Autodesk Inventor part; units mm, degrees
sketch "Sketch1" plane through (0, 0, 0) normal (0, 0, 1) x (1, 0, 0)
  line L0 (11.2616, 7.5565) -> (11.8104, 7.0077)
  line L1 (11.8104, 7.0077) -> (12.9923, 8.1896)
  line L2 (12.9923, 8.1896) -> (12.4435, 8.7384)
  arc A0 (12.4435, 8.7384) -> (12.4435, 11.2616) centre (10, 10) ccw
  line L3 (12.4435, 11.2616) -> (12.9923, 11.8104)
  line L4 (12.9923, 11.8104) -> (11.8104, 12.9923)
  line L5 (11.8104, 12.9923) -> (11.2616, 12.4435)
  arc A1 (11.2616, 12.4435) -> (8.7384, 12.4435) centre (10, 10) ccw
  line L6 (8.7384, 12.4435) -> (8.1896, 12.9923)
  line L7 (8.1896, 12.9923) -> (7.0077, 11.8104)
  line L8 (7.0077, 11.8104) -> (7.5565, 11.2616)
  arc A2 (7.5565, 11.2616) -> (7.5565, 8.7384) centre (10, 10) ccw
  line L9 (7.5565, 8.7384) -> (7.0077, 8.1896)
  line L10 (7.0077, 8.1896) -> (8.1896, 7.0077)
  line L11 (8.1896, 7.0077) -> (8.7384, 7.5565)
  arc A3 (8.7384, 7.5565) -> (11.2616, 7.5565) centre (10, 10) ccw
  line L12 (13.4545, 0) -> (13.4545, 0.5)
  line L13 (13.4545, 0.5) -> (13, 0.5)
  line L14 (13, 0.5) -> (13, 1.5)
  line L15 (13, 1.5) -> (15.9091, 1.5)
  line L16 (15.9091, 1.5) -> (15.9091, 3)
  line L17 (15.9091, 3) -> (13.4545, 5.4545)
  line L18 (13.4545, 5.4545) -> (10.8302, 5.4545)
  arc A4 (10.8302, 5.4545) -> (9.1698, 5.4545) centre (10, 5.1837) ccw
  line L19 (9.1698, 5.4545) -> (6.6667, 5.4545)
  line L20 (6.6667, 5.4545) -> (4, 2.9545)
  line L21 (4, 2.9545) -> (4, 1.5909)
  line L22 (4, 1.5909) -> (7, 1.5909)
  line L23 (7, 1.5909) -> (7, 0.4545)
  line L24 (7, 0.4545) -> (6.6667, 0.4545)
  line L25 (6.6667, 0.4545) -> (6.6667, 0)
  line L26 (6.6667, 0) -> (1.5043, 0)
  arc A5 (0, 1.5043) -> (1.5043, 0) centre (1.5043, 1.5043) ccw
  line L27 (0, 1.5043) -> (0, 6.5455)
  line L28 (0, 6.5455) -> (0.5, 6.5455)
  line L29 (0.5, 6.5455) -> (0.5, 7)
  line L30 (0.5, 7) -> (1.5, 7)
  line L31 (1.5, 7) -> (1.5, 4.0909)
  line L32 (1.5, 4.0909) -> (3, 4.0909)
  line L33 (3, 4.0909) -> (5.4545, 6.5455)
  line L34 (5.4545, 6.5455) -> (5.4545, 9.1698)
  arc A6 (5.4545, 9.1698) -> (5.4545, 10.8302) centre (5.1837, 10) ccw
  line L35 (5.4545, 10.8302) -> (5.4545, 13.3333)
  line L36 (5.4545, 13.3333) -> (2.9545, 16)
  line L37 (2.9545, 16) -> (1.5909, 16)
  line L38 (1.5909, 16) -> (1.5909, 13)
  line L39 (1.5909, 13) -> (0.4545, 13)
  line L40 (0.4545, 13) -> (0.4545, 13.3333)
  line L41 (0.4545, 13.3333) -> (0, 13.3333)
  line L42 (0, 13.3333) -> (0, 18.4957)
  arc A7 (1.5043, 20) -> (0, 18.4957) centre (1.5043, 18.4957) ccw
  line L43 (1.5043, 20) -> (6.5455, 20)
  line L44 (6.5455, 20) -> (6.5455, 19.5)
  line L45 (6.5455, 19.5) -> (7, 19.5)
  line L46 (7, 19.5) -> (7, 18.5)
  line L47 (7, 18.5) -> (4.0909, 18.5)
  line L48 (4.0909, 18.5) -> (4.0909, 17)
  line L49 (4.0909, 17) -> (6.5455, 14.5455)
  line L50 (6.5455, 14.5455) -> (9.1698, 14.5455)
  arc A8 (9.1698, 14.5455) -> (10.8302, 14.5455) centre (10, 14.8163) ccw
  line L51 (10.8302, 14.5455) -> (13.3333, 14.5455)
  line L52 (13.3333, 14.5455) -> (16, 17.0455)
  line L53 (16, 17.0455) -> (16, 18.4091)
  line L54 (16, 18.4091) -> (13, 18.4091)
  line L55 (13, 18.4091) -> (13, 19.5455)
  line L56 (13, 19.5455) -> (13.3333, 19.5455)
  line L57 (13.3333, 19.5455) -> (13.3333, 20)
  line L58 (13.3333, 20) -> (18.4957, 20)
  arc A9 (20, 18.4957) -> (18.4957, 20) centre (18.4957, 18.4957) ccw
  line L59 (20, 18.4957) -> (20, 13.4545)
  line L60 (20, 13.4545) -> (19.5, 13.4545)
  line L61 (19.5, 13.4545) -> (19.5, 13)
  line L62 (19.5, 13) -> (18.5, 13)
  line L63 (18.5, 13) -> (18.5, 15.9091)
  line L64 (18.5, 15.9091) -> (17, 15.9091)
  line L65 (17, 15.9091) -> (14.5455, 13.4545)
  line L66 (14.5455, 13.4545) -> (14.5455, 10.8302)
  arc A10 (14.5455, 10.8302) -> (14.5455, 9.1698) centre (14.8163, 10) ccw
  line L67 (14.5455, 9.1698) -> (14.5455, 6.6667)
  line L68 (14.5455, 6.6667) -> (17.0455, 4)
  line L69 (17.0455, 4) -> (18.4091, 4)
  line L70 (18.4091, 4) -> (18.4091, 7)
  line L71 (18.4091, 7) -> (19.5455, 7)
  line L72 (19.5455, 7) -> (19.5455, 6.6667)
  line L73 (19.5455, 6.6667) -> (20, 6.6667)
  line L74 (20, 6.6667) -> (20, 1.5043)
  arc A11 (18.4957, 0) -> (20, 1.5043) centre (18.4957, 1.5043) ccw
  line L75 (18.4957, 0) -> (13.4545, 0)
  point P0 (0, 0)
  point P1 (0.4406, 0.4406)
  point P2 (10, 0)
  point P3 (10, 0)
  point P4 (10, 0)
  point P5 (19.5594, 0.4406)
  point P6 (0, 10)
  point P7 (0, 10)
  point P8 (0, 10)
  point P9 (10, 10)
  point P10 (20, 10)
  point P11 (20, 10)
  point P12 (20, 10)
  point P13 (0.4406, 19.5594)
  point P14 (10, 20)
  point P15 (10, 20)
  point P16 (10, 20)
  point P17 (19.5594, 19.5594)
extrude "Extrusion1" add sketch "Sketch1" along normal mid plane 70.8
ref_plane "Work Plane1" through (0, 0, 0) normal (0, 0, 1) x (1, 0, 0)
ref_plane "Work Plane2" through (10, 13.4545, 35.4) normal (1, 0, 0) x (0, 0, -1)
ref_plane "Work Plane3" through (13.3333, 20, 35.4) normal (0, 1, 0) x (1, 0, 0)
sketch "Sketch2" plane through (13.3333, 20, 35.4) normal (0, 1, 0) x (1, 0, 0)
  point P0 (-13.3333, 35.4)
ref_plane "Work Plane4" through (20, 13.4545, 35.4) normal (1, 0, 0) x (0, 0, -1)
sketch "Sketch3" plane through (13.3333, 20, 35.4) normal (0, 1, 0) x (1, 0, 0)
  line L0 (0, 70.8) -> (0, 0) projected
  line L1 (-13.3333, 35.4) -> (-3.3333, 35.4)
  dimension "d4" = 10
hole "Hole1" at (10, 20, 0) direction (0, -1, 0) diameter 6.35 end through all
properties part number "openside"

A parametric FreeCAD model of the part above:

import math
import FreeCAD as App
import Part
import Sketcher
Q = App.Units.Quantity

doc = App.newDocument("Part")
body = doc.addObject("PartDesign::Body", "Body")

# Sketch on XY plane
sketch1 = body.newObject("Sketcher::SketchObject", "Sketch")
sketch1.AttachmentSupport = (doc.getObject("XY_Plane"), [""])
sketch1.MapMode = "FlatFace"
sketch1.addGeometry([
    Part.LineSegment(App.Vector(13.45, 0.5, 0), App.Vector(13.45, 0, 0)),  # 0
    Part.LineSegment(App.Vector(13.45, 0, 0), App.Vector(18.5, 0, 0)),  # 1
    Part.ArcOfCircle(Part.Circle(App.Vector(18.5, 1.5, 0), App.Vector(0, 0, 1), 1.5), math.radians(-90), math.radians(0)),  # 2
    Part.LineSegment(App.Vector(20, 1.5, 0), App.Vector(20, 6.67, 0)),  # 3
    Part.LineSegment(App.Vector(20, 6.67, 0), App.Vector(19.55, 6.67, 0)),  # 4
    Part.LineSegment(App.Vector(19.55, 6.67, 0), App.Vector(19.55, 7, 0)),  # 5
    Part.LineSegment(App.Vector(19.55, 7, 0), App.Vector(18.41, 7, 0)),  # 6
    Part.LineSegment(App.Vector(18.41, 7, 0), App.Vector(18.41, 4, 0)),  # 7
    Part.LineSegment(App.Vector(18.41, 4, 0), App.Vector(17.05, 4, 0)),  # 8
    Part.LineSegment(App.Vector(17.05, 4, 0), App.Vector(14.55, 6.67, 0)),  # 9
    Part.LineSegment(App.Vector(14.55, 6.67, 0), App.Vector(14.55, 9.17, 0)),  # 10
    Part.ArcOfCircle(Part.Circle(App.Vector(14.82, 10, 0), App.Vector(0, 0, 1), 0.87), math.radians(108), math.radians(252)),  # 11
    Part.LineSegment(App.Vector(14.55, 10.83, 0), App.Vector(14.55, 13.45, 0)),  # 12
    Part.LineSegment(App.Vector(14.55, 13.45, 0), App.Vector(17, 15.91, 0)),  # 13
    Part.LineSegment(App.Vector(17, 15.91, 0), App.Vector(18.5, 15.91, 0)),  # 14
    Part.LineSegment(App.Vector(18.5, 15.91, 0), App.Vector(18.5, 13, 0)),  # 15
    Part.LineSegment(App.Vector(18.5, 13, 0), App.Vector(19.5, 13, 0)),  # 16
    Part.LineSegment(App.Vector(19.5, 13, 0), App.Vector(19.5, 13.45, 0)),  # 17
    Part.LineSegment(App.Vector(19.5, 13.45, 0), App.Vector(20, 13.45, 0)),  # 18
    Part.LineSegment(App.Vector(20, 13.45, 0), App.Vector(20, 18.5, 0)),  # 19
    Part.ArcOfCircle(Part.Circle(App.Vector(18.5, 18.5, 0), App.Vector(0, 0, 1), 1.5), math.radians(0), math.radians(90)),  # 20
    Part.LineSegment(App.Vector(18.5, 20, 0), App.Vector(13.33, 20, 0)),  # 21
    Part.LineSegment(App.Vector(13.33, 20, 0), App.Vector(13.33, 19.55, 0)),  # 22
    Part.LineSegment(App.Vector(13.33, 19.55, 0), App.Vector(13, 19.55, 0)),  # 23
    Part.LineSegment(App.Vector(13, 19.55, 0), App.Vector(13, 18.41, 0)),  # 24
    Part.LineSegment(App.Vector(13, 18.41, 0), App.Vector(16, 18.41, 0)),  # 25
    Part.LineSegment(App.Vector(16, 18.41, 0), App.Vector(16, 17.05, 0)),  # 26
    Part.LineSegment(App.Vector(16, 17.05, 0), App.Vector(13.33, 14.55, 0)),  # 27
    Part.LineSegment(App.Vector(13.33, 14.55, 0), App.Vector(10.83, 14.55, 0)),  # 28
    Part.ArcOfCircle(Part.Circle(App.Vector(10, 14.82, 0), App.Vector(0, 0, 1), 0.87), math.radians(-162), math.radians(-18)),  # 29
    Part.LineSegment(App.Vector(9.17, 14.55, 0), App.Vector(6.55, 14.55, 0)),  # 30
    Part.LineSegment(App.Vector(6.55, 14.55, 0), App.Vector(4.09, 17, 0)),  # 31
    Part.LineSegment(App.Vector(4.09, 17, 0), App.Vector(4.09, 18.5, 0)),  # 32
    Part.LineSegment(App.Vector(4.09, 18.5, 0), App.Vector(7, 18.5, 0)),  # 33
    Part.LineSegment(App.Vector(7, 18.5, 0), App.Vector(7, 19.5, 0)),  # 34
    Part.LineSegment(App.Vector(7, 19.5, 0), App.Vector(6.55, 19.5, 0)),  # 35
    Part.LineSegment(App.Vector(6.55, 19.5, 0), App.Vector(6.55, 20, 0)),  # 36
    Part.LineSegment(App.Vector(6.55, 20, 0), App.Vector(1.5, 20, 0)),  # 37
    Part.ArcOfCircle(Part.Circle(App.Vector(1.5, 18.5, 0), App.Vector(0, 0, 1), 1.5), math.radians(90), math.radians(180)),  # 38
    Part.LineSegment(App.Vector(0, 18.5, 0), App.Vector(0, 13.33, 0)),  # 39
    Part.LineSegment(App.Vector(0, 13.33, 0), App.Vector(0.45, 13.33, 0)),  # 40
    Part.LineSegment(App.Vector(0.45, 13.33, 0), App.Vector(0.45, 13, 0)),  # 41
    Part.LineSegment(App.Vector(0.45, 13, 0), App.Vector(1.59, 13, 0)),  # 42
    Part.LineSegment(App.Vector(1.59, 13, 0), App.Vector(1.59, 16, 0)),  # 43
    Part.LineSegment(App.Vector(1.59, 16, 0), App.Vector(2.95, 16, 0)),  # 44
    Part.LineSegment(App.Vector(2.95, 16, 0), App.Vector(5.45, 13.33, 0)),  # 45
    Part.LineSegment(App.Vector(5.45, 13.33, 0), App.Vector(5.45, 10.83, 0)),  # 46
    Part.ArcOfCircle(Part.Circle(App.Vector(5.18, 10, 0), App.Vector(0, 0, 1), 0.87), math.radians(-72), math.radians(72)),  # 47
    Part.LineSegment(App.Vector(5.45, 9.17, 0), App.Vector(5.45, 6.55, 0)),  # 48
    Part.LineSegment(App.Vector(5.45, 6.55, 0), App.Vector(3, 4.09, 0)),  # 49
    Part.LineSegment(App.Vector(3, 4.09, 0), App.Vector(1.5, 4.09, 0)),  # 50
    Part.LineSegment(App.Vector(1.5, 4.09, 0), App.Vector(1.5, 7, 0)),  # 51
    Part.LineSegment(App.Vector(1.5, 7, 0), App.Vector(0.5, 7, 0)),  # 52
    Part.LineSegment(App.Vector(0.5, 7, 0), App.Vector(0.5, 6.55, 0)),  # 53
    Part.LineSegment(App.Vector(0.5, 6.55, 0), App.Vector(0, 6.55, 0)),  # 54
    Part.LineSegment(App.Vector(0, 6.55, 0), App.Vector(0, 1.5, 0)),  # 55
    Part.ArcOfCircle(Part.Circle(App.Vector(1.5, 1.5, 0), App.Vector(0, 0, 1), 1.5), math.radians(180), math.radians(270)),  # 56
    Part.LineSegment(App.Vector(1.5, 0, 0), App.Vector(6.67, 0, 0)),  # 57
    Part.LineSegment(App.Vector(6.67, 0, 0), App.Vector(6.67, 0.45, 0)),  # 58
    Part.LineSegment(App.Vector(6.67, 0.45, 0), App.Vector(7, 0.45, 0)),  # 59
    Part.LineSegment(App.Vector(7, 0.45, 0), App.Vector(7, 1.59, 0)),  # 60
    Part.LineSegment(App.Vector(7, 1.59, 0), App.Vector(4, 1.59, 0)),  # 61
    Part.LineSegment(App.Vector(4, 1.59, 0), App.Vector(4, 2.95, 0)),  # 62
    Part.LineSegment(App.Vector(4, 2.95, 0), App.Vector(6.67, 5.45, 0)),  # 63
    Part.LineSegment(App.Vector(6.67, 5.45, 0), App.Vector(9.17, 5.45, 0)),  # 64
    Part.ArcOfCircle(Part.Circle(App.Vector(10, 5.18, 0), App.Vector(0, 0, 1), 0.87), math.radians(18), math.radians(162)),  # 65
    Part.LineSegment(App.Vector(10.83, 5.45, 0), App.Vector(13.45, 5.45, 0)),  # 66
    Part.LineSegment(App.Vector(13.45, 5.45, 0), App.Vector(15.91, 3, 0)),  # 67
    Part.LineSegment(App.Vector(15.91, 3, 0), App.Vector(15.91, 1.5, 0)),  # 68
    Part.LineSegment(App.Vector(15.91, 1.5, 0), App.Vector(13, 1.5, 0)),  # 69
    Part.LineSegment(App.Vector(13, 1.5, 0), App.Vector(13, 0.5, 0)),  # 70
    Part.LineSegment(App.Vector(13, 0.5, 0), App.Vector(13.45, 0.5, 0)),  # 71
    Part.LineSegment(App.Vector(11.81, 7.01, 0), App.Vector(11.26, 7.56, 0)),  # 72
    Part.ArcOfCircle(Part.Circle(App.Vector(10, 10, 0), App.Vector(0, 0, 1), 2.75), math.radians(-117), math.radians(-63)),  # 73
    Part.LineSegment(App.Vector(8.74, 7.56, 0), App.Vector(8.19, 7.01, 0)),  # 74
    Part.LineSegment(App.Vector(8.19, 7.01, 0), App.Vector(7.01, 8.19, 0)),  # 75
    Part.LineSegment(App.Vector(7.01, 8.19, 0), App.Vector(7.56, 8.74, 0)),  # 76
    Part.ArcOfCircle(Part.Circle(App.Vector(10, 10, 0), App.Vector(0, 0, 1), 2.75), math.radians(153), math.radians(207)),  # 77
    Part.LineSegment(App.Vector(7.56, 11.26, 0), App.Vector(7.01, 11.81, 0)),  # 78
    Part.LineSegment(App.Vector(7.01, 11.81, 0), App.Vector(8.19, 12.99, 0)),  # 79
    Part.LineSegment(App.Vector(8.19, 12.99, 0), App.Vector(8.74, 12.44, 0)),  # 80
    Part.ArcOfCircle(Part.Circle(App.Vector(10, 10, 0), App.Vector(0, 0, 1), 2.75), math.radians(63), math.radians(117)),  # 81
    Part.LineSegment(App.Vector(11.26, 12.44, 0), App.Vector(11.81, 12.99, 0)),  # 82
    Part.LineSegment(App.Vector(11.81, 12.99, 0), App.Vector(12.99, 11.81, 0)),  # 83
    Part.LineSegment(App.Vector(12.99, 11.81, 0), App.Vector(12.44, 11.26, 0)),  # 84
    Part.ArcOfCircle(Part.Circle(App.Vector(10, 10, 0), App.Vector(0, 0, 1), 2.75), math.radians(-27), math.radians(27)),  # 85
    Part.LineSegment(App.Vector(12.44, 8.74, 0), App.Vector(12.99, 8.19, 0)),  # 86
    Part.LineSegment(App.Vector(12.99, 8.19, 0), App.Vector(11.81, 7.01, 0)),  # 87
], False)
sketch1.addConstraint([
    Sketcher.Constraint("Coincident", 0, 2, 1, 1),
    Sketcher.Constraint("Tangent", 1, 2, 2, 1),
    Sketcher.Constraint("Tangent", 2, 2, 3, 1),
    Sketcher.Constraint("Coincident", 3, 2, 4, 1),
    Sketcher.Constraint("Coincident", 4, 2, 5, 1),
    Sketcher.Constraint("Coincident", 5, 2, 6, 1),
    Sketcher.Constraint("Coincident", 6, 2, 7, 1),
    Sketcher.Constraint("Coincident", 7, 2, 8, 1),
    Sketcher.Constraint("Coincident", 8, 2, 9, 1),
    Sketcher.Constraint("Coincident", 9, 2, 10, 1),
    Sketcher.Constraint("Coincident", 10, 2, 11, 2),
    Sketcher.Constraint("Coincident", 11, 1, 12, 1),
    Sketcher.Constraint("Coincident", 12, 2, 13, 1),
    Sketcher.Constraint("Coincident", 13, 2, 14, 1),
    Sketcher.Constraint("Coincident", 14, 2, 15, 1),
    Sketcher.Constraint("Coincident", 15, 2, 16, 1),
    Sketcher.Constraint("Coincident", 16, 2, 17, 1),
    Sketcher.Constraint("Coincident", 17, 2, 18, 1),
    Sketcher.Constraint("Coincident", 18, 2, 19, 1),
    Sketcher.Constraint("Tangent", 19, 2, 20, 1),
    Sketcher.Constraint("Tangent", 20, 2, 21, 1),
    Sketcher.Constraint("Coincident", 21, 2, 22, 1),
    Sketcher.Constraint("Coincident", 22, 2, 23, 1),
    Sketcher.Constraint("Coincident", 23, 2, 24, 1),
    Sketcher.Constraint("Coincident", 24, 2, 25, 1),
    Sketcher.Constraint("Coincident", 25, 2, 26, 1),
    Sketcher.Constraint("Coincident", 26, 2, 27, 1),
    Sketcher.Constraint("Coincident", 27, 2, 28, 1),
    Sketcher.Constraint("Coincident", 28, 2, 29, 2),
    Sketcher.Constraint("Coincident", 29, 1, 30, 1),
    Sketcher.Constraint("Coincident", 30, 2, 31, 1),
    Sketcher.Constraint("Coincident", 31, 2, 32, 1),
    Sketcher.Constraint("Coincident", 32, 2, 33, 1),
    Sketcher.Constraint("Coincident", 33, 2, 34, 1),
    Sketcher.Constraint("Coincident", 34, 2, 35, 1),
    Sketcher.Constraint("Coincident", 35, 2, 36, 1),
    Sketcher.Constraint("Coincident", 36, 2, 37, 1),
    Sketcher.Constraint("Tangent", 37, 2, 38, 1),
    Sketcher.Constraint("Tangent", 38, 2, 39, 1),
    Sketcher.Constraint("Coincident", 39, 2, 40, 1),
    Sketcher.Constraint("Coincident", 40, 2, 41, 1),
    Sketcher.Constraint("Coincident", 41, 2, 42, 1),
    Sketcher.Constraint("Coincident", 42, 2, 43, 1),
    Sketcher.Constraint("Coincident", 43, 2, 44, 1),
    Sketcher.Constraint("Coincident", 44, 2, 45, 1),
    Sketcher.Constraint("Coincident", 45, 2, 46, 1),
    Sketcher.Constraint("Coincident", 46, 2, 47, 2),
    Sketcher.Constraint("Coincident", 47, 1, 48, 1),
    Sketcher.Constraint("Coincident", 48, 2, 49, 1),
    Sketcher.Constraint("Coincident", 49, 2, 50, 1),
    Sketcher.Constraint("Coincident", 50, 2, 51, 1),
    Sketcher.Constraint("Coincident", 51, 2, 52, 1),
    Sketcher.Constraint("Coincident", 52, 2, 53, 1),
    Sketcher.Constraint("Coincident", 53, 2, 54, 1),
    Sketcher.Constraint("Coincident", 54, 2, 55, 1),
    Sketcher.Constraint("Tangent", 55, 2, 56, 1),
    Sketcher.Constraint("Tangent", 56, 2, 57, 1),
    Sketcher.Constraint("Coincident", 57, 2, 58, 1),
    Sketcher.Constraint("Coincident", 58, 2, 59, 1),
    Sketcher.Constraint("Coincident", 59, 2, 60, 1),
    Sketcher.Constraint("Coincident", 60, 2, 61, 1),
    Sketcher.Constraint("Coincident", 61, 2, 62, 1),
    Sketcher.Constraint("Coincident", 62, 2, 63, 1),
    Sketcher.Constraint("Coincident", 63, 2, 64, 1),
    Sketcher.Constraint("Coincident", 64, 2, 65, 2),
    Sketcher.Constraint("Coincident", 65, 1, 66, 1),
    Sketcher.Constraint("Coincident", 66, 2, 67, 1),
    Sketcher.Constraint("Coincident", 67, 2, 68, 1),
    Sketcher.Constraint("Coincident", 68, 2, 69, 1),
    Sketcher.Constraint("Coincident", 69, 2, 70, 1),
    Sketcher.Constraint("Coincident", 70, 2, 71, 1),
    Sketcher.Constraint("Coincident", 71, 2, 0, 1),
    Sketcher.Constraint("Coincident", 72, 2, 73, 2),
    Sketcher.Constraint("Coincident", 73, 1, 74, 1),
    Sketcher.Constraint("Coincident", 74, 2, 75, 1),
    Sketcher.Constraint("Coincident", 75, 2, 76, 1),
    Sketcher.Constraint("Coincident", 76, 2, 77, 2),
    Sketcher.Constraint("Coincident", 77, 1, 78, 1),
    Sketcher.Constraint("Coincident", 78, 2, 79, 1),
    Sketcher.Constraint("Coincident", 79, 2, 80, 1),
    Sketcher.Constraint("Coincident", 80, 2, 81, 2),
    Sketcher.Constraint("Coincident", 81, 1, 82, 1),
    Sketcher.Constraint("Coincident", 82, 2, 83, 1),
    Sketcher.Constraint("Coincident", 83, 2, 84, 1),
    Sketcher.Constraint("Coincident", 84, 2, 85, 2),
    Sketcher.Constraint("Coincident", 85, 1, 86, 1),
    Sketcher.Constraint("Coincident", 86, 2, 87, 1),
    Sketcher.Constraint("Coincident", 87, 2, 72, 1),
    Sketcher.Constraint("Vertical", 0),
    Sketcher.Constraint("Horizontal", 1),
    Sketcher.Constraint("Vertical", 3),
    Sketcher.Constraint("Horizontal", 4),
    Sketcher.Constraint("Vertical", 5),
    Sketcher.Constraint("Horizontal", 6),
    Sketcher.Constraint("Vertical", 7),
    Sketcher.Constraint("Horizontal", 8),
    Sketcher.Constraint("Vertical", 10),
    Sketcher.Constraint("Vertical", 12),
    Sketcher.Constraint("Horizontal", 14),
    Sketcher.Constraint("Vertical", 15),
    Sketcher.Constraint("Horizontal", 16),
    Sketcher.Constraint("Vertical", 17),
    Sketcher.Constraint("Horizontal", 18),
    Sketcher.Constraint("Vertical", 19),
    Sketcher.Constraint("Horizontal", 21),
    Sketcher.Constraint("Vertical", 22),
    Sketcher.Constraint("Horizontal", 23),
    Sketcher.Constraint("Vertical", 24),
    Sketcher.Constraint("Horizontal", 25),
    Sketcher.Constraint("Vertical", 26),
    Sketcher.Constraint("Horizontal", 28),
    Sketcher.Constraint("Horizontal", 30),
    Sketcher.Constraint("Vertical", 32),
    Sketcher.Constraint("Horizontal", 33),
    Sketcher.Constraint("Vertical", 34),
    Sketcher.Constraint("Horizontal", 35),
    Sketcher.Constraint("Vertical", 36),
    Sketcher.Constraint("Horizontal", 37),
    Sketcher.Constraint("Vertical", 39),
    Sketcher.Constraint("Horizontal", 40),
    Sketcher.Constraint("Vertical", 41),
    Sketcher.Constraint("Horizontal", 42),
    Sketcher.Constraint("Vertical", 43),
    Sketcher.Constraint("Horizontal", 44),
    Sketcher.Constraint("Vertical", 46),
    Sketcher.Constraint("Vertical", 48),
    Sketcher.Constraint("Horizontal", 50),
    Sketcher.Constraint("Vertical", 51),
    Sketcher.Constraint("Horizontal", 52),
    Sketcher.Constraint("Vertical", 53),
    Sketcher.Constraint("Horizontal", 54),
    Sketcher.Constraint("Vertical", 55),
    Sketcher.Constraint("Horizontal", 57),
    Sketcher.Constraint("Vertical", 58),
    Sketcher.Constraint("Horizontal", 59),
    Sketcher.Constraint("Vertical", 60),
    Sketcher.Constraint("Horizontal", 61),
    Sketcher.Constraint("Vertical", 62),
    Sketcher.Constraint("Horizontal", 64),
    Sketcher.Constraint("Horizontal", 66),
    Sketcher.Constraint("Vertical", 68),
    Sketcher.Constraint("Horizontal", 69),
    Sketcher.Constraint("Vertical", 70),
    Sketcher.Constraint("Horizontal", 71),
    Sketcher.Constraint("Coincident", 77, 3, 73, 3),
    Sketcher.Constraint("Coincident", 81, 3, 73, 3),
    Sketcher.Constraint("Coincident", 85, 3, 73, 3),
    Sketcher.Constraint("Equal", 2, 20),
    Sketcher.Constraint("Equal", 11, 29),
    Sketcher.Constraint("Equal", 20, 38),
    Sketcher.Constraint("Equal", 29, 47),
    Sketcher.Constraint("Equal", 38, 56),
    Sketcher.Constraint("Equal", 47, 65),
    Sketcher.Constraint("Equal", 73, 77),
    Sketcher.Constraint("Equal", 77, 81),
    Sketcher.Constraint("Equal", 81, 85),
    Sketcher.Constraint("PointOnObject", 0, 2, -1),
    Sketcher.Constraint("PointOnObject", 38, 2, -2),
    Sketcher.Constraint("PointOnObject", 54, 2, -2),
    Sketcher.Constraint("PointOnObject", 56, 2, -1),
    Sketcher.Constraint("Perpendicular", 9, 27),
    Sketcher.Constraint("Perpendicular", 13, 31),
    Sketcher.Constraint("Perpendicular", 27, 45),
    Sketcher.Constraint("Perpendicular", 31, 49),
    Sketcher.Constraint("Perpendicular", 45, 63),
    Sketcher.Constraint("Perpendicular", 49, 67),
    Sketcher.Constraint("Parallel", 67, 72),
    Sketcher.Constraint("Perpendicular", 72, 74),
    Sketcher.Constraint("Perpendicular", 74, 75),
    Sketcher.Constraint("Perpendicular", 75, 76),
    Sketcher.Constraint("Perpendicular", 76, 78),
    Sketcher.Constraint("Perpendicular", 78, 79),
    Sketcher.Constraint("Perpendicular", 79, 80),
    Sketcher.Constraint("Perpendicular", 80, 82),
    Sketcher.Constraint("Perpendicular", 82, 83),
    Sketcher.Constraint("Perpendicular", 83, 84),
    Sketcher.Constraint("Perpendicular", 84, 86),
    Sketcher.Constraint("Perpendicular", 86, 87),
    Sketcher.Constraint("Horizontal", 20, 3, 38, 3),
    Sketcher.Constraint("Horizontal", 11, 3, 47, 3),
    Sketcher.Constraint("Horizontal", 47, 3, 73, 3),
    Sketcher.Constraint("Horizontal", 4, 2, 9, 2),
    Sketcher.Constraint("Horizontal", 12, 2, 17, 2),
    Sketcher.Constraint("Horizontal", 28, 2, 29, 1),
    Sketcher.Constraint("Horizontal", 16, 2, 41, 2),
    Sketcher.Constraint("Horizontal", 40, 2, 45, 2),
    Sketcher.Constraint("Horizontal", 11, 1, 46, 2),
    Sketcher.Constraint("Horizontal", 10, 2, 47, 1),
    Sketcher.Constraint("Horizontal", 6, 2, 51, 2),
    Sketcher.Constraint("Horizontal", 48, 2, 53, 2),
    Sketcher.Constraint("Horizontal", 64, 2, 65, 1),
    Sketcher.Constraint("Horizontal", 72, 2, 73, 1),
    Sketcher.Constraint("Horizontal", 80, 2, 81, 1),
    Sketcher.Constraint("Horizontal", 79, 2, 82, 2),
    Sketcher.Constraint("Horizontal", 78, 2, 83, 2),
    Sketcher.Constraint("Horizontal", 77, 1, 84, 2),
    Sketcher.Constraint("Horizontal", 76, 2, 85, 1),
    Sketcher.Constraint("Horizontal", 75, 2, 86, 2),
    Sketcher.Constraint("Vertical", 2, 3, 20, 3),
    Sketcher.Constraint("Vertical", 29, 3, 65, 3),
    Sketcher.Constraint("Vertical", 65, 3, 73, 3),
    Sketcher.Constraint("Vertical", 10, 2, 11, 1),
    Sketcher.Constraint("Vertical", 22, 2, 27, 2),
    Sketcher.Constraint("Vertical", 30, 2, 35, 2),
    Sketcher.Constraint("Vertical", 34, 2, 59, 2),
    Sketcher.Constraint("Vertical", 58, 2, 63, 2),
    Sketcher.Constraint("Vertical", 29, 1, 64, 2),
    Sketcher.Constraint("Vertical", 0, 2, 66, 2),
    Sketcher.Constraint("Vertical", 24, 2, 69, 2),
    Sketcher.Constraint("Vertical", 76, 2, 77, 1),
    Sketcher.Constraint("Vertical", 75, 2, 78, 2),
    Sketcher.Constraint("Vertical", 74, 2, 79, 2),
    Sketcher.Constraint("Equal", 4, 35),
    Sketcher.Constraint("Equal", 1, 37),
    Sketcher.Constraint("Equal", 35, 40),
    Sketcher.Constraint("Equal", 6, 42),
    Sketcher.Constraint("Equal", 8, 44),
    Sketcher.Constraint("Equal", 14, 50),
    Sketcher.Constraint("Equal", 16, 52),
    Sketcher.Constraint("Equal", 18, 54),
    Sketcher.Constraint("Equal", 21, 57),
    Sketcher.Constraint("Equal", 23, 59),
    Sketcher.Constraint("Equal", 25, 61),
    Sketcher.Constraint("Equal", 28, 64),
    Sketcher.Constraint("Equal", 33, 69),
    Sketcher.Constraint("Equal", 54, 0),
    Sketcher.Constraint("Equal", 57, 3),
    Sketcher.Constraint("Equal", 59, 5),
    Sketcher.Constraint("Equal", 61, 7),
    Sketcher.Constraint("Equal", 64, 10),
    Sketcher.Constraint("Equal", 66, 12),
    Sketcher.Constraint("Equal", 69, 15),
    Sketcher.Constraint("Equal", 71, 17),
    Sketcher.Constraint("Equal", 37, 19),
    Sketcher.Constraint("Equal", 17, 22),
    Sketcher.Constraint("Equal", 42, 24),
    Sketcher.Constraint("Equal", 44, 26),
    Sketcher.Constraint("Equal", 50, 32),
    Sketcher.Constraint("Equal", 52, 34),
    Sketcher.Constraint("Equal", 3, 39),
    Sketcher.Constraint("Equal", 7, 43),
    Sketcher.Constraint("Equal", 12, 48),
    Sketcher.Constraint("Equal", 53, 58),
    Sketcher.Constraint("Equal", 24, 60),
    Sketcher.Constraint("Equal", 26, 62),
    Sketcher.Constraint("Equal", 32, 68),
    Sketcher.Constraint("Equal", 74, 76),
    Sketcher.Constraint("DistanceX", 16, 1, 16, 2, Q("1 mm")),
    Sketcher.Constraint("DistanceX", 25, 1, 25, 2, Q("3 mm")),
    Sketcher.Constraint("Radius", 73, Q("2.75 mm")),
    Sketcher.Constraint("DistanceX", 14, 1, 14, 2, Q("1.5 mm")),
    Sketcher.Constraint("DistanceX", 18, 1, 18, 2, Q("0.5 mm")),
    Sketcher.Constraint("DistanceY", -1, 1, 11, 3, Q("10 mm")),
    Sketcher.Constraint("DistanceX", -1, 1, 29, 3, Q("10 mm")),
    Sketcher.Constraint("DistanceY", -1, 1, 5, 2, Q("7 mm")),
    Sketcher.Constraint("Radius", 2, Q("1.5043 mm")),
    Sketcher.Constraint("Radius", 11, Q("0.8732 mm")),
    Sketcher.Constraint("DistanceX", 28, 2, 28, 1, Q("2.503 mm")),
    Sketcher.Constraint("DistanceX", 33, 1, 33, 2, Q("2.909 mm")),
    Sketcher.Constraint("DistanceX", 1, 1, 1, 2, Q("5.0412 mm")),
    Sketcher.Constraint("DistanceX", 6, 2, 6, 1, Q("1.1364 mm")),
    Sketcher.Constraint("DistanceX", 8, 2, 8, 1, Q("1.3636 mm")),
    Sketcher.Constraint("DistanceX", 21, 2, 21, 1, Q("5.1624 mm")),
    Sketcher.Constraint("Distance", 72, Q("0.7761 mm")),
    Sketcher.Constraint("Distance", 75, Q("1.6715 mm")),
])
pad1 = body.newObject("PartDesign::Pad", "Pad")
pad1.Profile = sketch1
pad1.Length = 70.8
pad1.Midplane = True

# Sketch on XZ plane
sketch2 = body.newObject("Sketcher::SketchObject", "Sketch001")
sketch2.AttachmentSupport = (doc.getObject("XZ_Plane"), [""])
sketch2.MapMode = "FlatFace"
sketch2.AttachmentOffset = App.Placement(App.Vector(0, 0, -20), App.Rotation())
sketch2.addGeometry(Part.Circle(App.Vector(10, 0, 0), App.Vector(0, 0, 1), 3.2), False)
sketch2.addConstraint([
    Sketcher.Constraint("PointOnObject", 0, 3, -1),
    Sketcher.Constraint("Diameter", 0, Q("6.35 mm")),
    Sketcher.Constraint("DistanceX", -1, 1, 0, 3, Q("10 mm")),
])
doc.recompute()
hole = body.newObject("PartDesign::Hole", "Hole")
hole.Profile = sketch2
hole.ThreadType = "None"
hole.Diameter = 6.35
hole.DepthType = "ThroughAll"
hole.Reversed = True

doc.recompute()
